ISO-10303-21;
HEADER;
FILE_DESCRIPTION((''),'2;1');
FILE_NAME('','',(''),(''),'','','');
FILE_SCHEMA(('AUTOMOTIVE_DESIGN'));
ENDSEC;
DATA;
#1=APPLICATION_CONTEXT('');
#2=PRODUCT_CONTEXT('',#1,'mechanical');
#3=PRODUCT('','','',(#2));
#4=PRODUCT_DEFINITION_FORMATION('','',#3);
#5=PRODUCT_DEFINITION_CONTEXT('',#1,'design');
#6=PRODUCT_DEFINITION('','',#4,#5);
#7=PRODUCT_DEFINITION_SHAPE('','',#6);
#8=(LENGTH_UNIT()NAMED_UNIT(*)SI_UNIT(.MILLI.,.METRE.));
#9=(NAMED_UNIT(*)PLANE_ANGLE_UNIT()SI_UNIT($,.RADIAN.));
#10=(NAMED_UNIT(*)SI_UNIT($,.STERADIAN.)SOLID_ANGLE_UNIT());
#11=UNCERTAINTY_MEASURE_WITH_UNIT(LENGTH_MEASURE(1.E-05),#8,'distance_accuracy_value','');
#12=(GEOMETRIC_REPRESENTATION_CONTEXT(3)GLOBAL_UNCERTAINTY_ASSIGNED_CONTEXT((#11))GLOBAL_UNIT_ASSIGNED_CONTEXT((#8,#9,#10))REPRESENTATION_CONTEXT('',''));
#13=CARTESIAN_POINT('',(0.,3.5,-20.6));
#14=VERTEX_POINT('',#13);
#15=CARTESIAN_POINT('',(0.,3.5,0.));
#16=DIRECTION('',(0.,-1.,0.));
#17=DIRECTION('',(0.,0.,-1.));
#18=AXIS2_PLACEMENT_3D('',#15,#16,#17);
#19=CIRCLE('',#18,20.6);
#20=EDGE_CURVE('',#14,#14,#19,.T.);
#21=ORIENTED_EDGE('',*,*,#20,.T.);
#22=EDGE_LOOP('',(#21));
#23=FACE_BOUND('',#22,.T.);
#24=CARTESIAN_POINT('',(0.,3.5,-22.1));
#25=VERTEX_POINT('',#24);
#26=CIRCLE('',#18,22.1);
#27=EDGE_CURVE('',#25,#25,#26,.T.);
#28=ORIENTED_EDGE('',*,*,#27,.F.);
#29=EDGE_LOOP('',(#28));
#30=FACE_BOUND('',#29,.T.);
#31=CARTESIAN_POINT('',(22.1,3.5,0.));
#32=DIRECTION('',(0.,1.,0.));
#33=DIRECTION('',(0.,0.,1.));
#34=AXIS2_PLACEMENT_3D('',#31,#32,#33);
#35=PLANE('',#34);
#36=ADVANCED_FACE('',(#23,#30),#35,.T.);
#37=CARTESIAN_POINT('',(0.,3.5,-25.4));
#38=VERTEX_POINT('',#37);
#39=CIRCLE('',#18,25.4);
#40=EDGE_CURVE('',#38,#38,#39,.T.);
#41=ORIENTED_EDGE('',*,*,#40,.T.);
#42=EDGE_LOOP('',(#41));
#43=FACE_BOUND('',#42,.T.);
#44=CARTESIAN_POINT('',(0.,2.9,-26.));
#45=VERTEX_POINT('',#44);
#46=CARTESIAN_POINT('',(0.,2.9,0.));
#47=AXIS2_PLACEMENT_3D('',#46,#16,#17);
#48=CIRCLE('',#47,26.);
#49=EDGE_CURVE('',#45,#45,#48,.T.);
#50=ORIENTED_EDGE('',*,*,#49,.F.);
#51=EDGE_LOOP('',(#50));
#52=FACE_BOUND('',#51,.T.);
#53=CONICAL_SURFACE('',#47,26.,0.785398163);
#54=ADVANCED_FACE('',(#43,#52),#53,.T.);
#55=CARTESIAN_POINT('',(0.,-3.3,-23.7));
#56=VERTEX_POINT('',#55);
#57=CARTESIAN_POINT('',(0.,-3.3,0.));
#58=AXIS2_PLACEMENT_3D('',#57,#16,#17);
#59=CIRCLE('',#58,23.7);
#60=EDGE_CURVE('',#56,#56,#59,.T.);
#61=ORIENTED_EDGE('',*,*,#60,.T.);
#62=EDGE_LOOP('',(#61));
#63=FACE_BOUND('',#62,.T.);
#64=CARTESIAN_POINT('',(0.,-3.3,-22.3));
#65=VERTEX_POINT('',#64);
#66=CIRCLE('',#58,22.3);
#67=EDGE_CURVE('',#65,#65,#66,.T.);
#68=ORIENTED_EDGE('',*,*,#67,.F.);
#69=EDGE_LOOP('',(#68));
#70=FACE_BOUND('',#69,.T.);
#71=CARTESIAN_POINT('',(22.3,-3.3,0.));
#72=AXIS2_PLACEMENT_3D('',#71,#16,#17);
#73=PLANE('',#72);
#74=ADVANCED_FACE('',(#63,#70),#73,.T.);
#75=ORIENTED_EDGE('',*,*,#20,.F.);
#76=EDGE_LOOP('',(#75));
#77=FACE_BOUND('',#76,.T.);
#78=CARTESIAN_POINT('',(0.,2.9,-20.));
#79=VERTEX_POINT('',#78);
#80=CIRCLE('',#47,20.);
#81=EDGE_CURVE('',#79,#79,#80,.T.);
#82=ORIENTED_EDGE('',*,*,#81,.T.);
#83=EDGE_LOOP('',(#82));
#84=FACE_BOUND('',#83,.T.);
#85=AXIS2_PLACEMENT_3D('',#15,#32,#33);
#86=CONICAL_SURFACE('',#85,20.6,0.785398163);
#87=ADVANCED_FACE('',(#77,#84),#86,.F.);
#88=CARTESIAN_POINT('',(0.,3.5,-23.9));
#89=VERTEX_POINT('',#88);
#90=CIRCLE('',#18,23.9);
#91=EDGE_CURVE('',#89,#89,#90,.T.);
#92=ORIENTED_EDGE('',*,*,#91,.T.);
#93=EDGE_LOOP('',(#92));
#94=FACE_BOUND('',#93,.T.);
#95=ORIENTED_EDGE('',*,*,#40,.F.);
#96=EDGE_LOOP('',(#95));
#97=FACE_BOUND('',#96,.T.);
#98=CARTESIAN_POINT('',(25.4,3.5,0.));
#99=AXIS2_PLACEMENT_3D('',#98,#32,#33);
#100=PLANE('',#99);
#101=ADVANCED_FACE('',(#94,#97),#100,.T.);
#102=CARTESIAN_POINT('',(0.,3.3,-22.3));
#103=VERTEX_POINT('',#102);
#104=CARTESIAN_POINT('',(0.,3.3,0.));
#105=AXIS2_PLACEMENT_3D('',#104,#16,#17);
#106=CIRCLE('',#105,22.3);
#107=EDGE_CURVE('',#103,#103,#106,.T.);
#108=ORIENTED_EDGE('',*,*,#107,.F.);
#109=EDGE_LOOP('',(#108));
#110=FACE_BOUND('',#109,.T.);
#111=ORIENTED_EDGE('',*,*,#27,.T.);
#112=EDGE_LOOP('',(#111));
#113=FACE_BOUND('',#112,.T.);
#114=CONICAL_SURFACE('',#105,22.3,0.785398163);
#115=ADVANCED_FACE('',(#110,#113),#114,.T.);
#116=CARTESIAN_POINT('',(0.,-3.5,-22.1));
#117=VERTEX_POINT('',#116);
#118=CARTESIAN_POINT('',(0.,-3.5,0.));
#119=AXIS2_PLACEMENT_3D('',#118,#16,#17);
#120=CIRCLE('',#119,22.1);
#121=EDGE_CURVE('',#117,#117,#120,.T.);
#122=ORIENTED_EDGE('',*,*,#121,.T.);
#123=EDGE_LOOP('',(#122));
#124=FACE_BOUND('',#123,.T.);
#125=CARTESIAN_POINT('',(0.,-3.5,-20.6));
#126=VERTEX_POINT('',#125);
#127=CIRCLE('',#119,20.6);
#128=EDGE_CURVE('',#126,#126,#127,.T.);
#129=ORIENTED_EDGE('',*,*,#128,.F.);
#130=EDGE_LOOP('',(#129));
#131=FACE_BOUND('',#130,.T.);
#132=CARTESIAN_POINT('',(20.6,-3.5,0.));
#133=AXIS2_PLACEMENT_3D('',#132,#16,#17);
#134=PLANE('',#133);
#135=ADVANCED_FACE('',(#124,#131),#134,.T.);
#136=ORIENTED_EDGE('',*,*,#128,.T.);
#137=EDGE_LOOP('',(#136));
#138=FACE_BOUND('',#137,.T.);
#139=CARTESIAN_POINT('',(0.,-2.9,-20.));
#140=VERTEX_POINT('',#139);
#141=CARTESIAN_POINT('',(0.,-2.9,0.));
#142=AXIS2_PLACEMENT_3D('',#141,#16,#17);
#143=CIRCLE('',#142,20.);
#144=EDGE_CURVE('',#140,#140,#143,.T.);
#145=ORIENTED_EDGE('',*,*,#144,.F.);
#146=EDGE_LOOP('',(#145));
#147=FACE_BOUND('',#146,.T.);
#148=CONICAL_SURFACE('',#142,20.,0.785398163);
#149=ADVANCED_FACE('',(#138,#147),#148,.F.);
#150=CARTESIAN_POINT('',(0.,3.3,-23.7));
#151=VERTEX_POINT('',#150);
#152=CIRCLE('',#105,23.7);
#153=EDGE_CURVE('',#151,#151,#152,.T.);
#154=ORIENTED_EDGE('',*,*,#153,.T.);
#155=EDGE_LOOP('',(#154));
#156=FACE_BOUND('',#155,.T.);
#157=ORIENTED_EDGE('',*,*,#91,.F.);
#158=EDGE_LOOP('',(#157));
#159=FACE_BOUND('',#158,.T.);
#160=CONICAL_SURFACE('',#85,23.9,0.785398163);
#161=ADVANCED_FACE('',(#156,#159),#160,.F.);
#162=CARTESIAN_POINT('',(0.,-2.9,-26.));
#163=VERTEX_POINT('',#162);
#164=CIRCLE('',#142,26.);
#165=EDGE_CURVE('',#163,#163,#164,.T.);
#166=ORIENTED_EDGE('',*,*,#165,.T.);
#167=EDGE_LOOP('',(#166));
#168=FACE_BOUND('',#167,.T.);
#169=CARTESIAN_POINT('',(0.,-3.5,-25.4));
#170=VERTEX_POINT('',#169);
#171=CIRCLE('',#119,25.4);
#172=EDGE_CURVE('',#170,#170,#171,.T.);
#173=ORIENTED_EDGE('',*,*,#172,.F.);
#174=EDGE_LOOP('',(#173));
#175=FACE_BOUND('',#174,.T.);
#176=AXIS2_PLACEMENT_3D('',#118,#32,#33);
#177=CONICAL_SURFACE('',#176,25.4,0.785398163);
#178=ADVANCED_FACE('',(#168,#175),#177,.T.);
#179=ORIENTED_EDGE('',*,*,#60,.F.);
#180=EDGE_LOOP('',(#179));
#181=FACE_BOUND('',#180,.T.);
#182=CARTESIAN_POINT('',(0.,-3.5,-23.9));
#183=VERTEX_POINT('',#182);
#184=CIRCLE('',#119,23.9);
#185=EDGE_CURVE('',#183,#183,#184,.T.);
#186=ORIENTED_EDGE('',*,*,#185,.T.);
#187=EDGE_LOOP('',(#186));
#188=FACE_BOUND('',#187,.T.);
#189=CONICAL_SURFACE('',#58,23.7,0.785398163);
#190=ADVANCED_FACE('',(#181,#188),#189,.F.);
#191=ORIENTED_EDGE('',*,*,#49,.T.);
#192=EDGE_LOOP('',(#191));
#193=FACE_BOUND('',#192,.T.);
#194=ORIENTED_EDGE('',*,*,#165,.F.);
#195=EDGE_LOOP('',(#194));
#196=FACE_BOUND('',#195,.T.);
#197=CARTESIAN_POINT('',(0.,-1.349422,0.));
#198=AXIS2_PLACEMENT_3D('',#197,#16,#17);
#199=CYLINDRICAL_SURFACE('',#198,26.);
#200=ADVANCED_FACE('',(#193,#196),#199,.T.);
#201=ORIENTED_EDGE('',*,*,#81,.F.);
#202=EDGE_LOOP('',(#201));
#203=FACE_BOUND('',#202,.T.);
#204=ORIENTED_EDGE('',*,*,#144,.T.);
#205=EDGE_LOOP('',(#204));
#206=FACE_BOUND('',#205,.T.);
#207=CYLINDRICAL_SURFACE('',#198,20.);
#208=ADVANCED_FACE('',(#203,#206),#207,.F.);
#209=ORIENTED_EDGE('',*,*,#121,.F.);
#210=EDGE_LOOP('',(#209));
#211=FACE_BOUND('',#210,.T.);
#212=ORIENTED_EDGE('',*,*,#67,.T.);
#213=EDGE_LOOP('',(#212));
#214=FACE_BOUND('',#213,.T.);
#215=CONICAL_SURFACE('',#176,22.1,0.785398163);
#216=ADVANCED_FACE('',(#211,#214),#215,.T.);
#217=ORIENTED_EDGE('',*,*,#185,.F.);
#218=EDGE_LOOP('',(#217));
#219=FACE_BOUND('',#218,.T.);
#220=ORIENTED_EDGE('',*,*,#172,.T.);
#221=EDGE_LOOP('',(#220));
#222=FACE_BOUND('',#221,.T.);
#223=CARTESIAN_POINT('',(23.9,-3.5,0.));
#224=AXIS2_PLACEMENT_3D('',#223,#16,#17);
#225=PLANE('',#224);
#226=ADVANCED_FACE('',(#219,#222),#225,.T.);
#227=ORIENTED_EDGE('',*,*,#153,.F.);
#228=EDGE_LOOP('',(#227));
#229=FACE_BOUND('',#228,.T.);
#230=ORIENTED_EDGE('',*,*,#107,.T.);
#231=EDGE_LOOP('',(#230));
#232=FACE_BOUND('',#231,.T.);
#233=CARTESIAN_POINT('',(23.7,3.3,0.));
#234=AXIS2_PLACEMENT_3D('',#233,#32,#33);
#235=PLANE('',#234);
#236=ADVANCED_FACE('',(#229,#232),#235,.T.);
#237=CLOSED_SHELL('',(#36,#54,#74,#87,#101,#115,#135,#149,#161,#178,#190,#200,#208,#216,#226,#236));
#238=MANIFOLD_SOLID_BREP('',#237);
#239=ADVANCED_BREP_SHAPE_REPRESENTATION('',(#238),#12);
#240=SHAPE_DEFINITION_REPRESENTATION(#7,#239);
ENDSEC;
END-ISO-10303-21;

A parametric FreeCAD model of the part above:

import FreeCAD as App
import Part
import Sketcher


def add_polygon(sketch, points):
    """Adds a closed chain of lines whose ends are joined by coincident constraints."""
    first, n = sketch.GeometryCount, len(points)
    for a, b in zip(points, points[1:] + points[:1]):
        sketch.addGeometry(Part.LineSegment(App.Vector(*a, 0), App.Vector(*b, 0)), False)
    for i in range(n):
        sketch.addConstraint(Sketcher.Constraint("Coincident", first + i, 2, first + (i + 1) % n, 1))

doc = App.newDocument("Part")
body = doc.addObject("PartDesign::Body", "Body")

# Sketch on XY plane
sketch1 = body.newObject("Sketcher::SketchObject", "Sketch")
sketch1.AttachmentSupport = (doc.getObject("XY_Plane"), [""])
sketch1.MapMode = "FlatFace"
add_polygon(sketch1, [(20, 2.9), (20, -2.9), (20.6, -3.5), (22.1, -3.5), (22.3, -3.3), (23.7, -3.3), (23.9, -3.5), (25.4, -3.5), (26, -2.9), (26, 2.9), (25.4, 3.5), (23.9, 3.5), (23.7, 3.3), (22.3, 3.3), (22.1, 3.5), (20.6, 3.5)])  # lines 0-15
sketch1.addConstraint([
    Sketcher.Constraint("Vertical", 0),
    Sketcher.Constraint("Horizontal", 2),
    Sketcher.Constraint("Horizontal", 4),
    Sketcher.Constraint("Horizontal", 6),
    Sketcher.Constraint("Vertical", 8),
    Sketcher.Constraint("Horizontal", 10),
    Sketcher.Constraint("Horizontal", 12),
    Sketcher.Constraint("Horizontal", 14),
    Sketcher.Constraint("Symmetric", 6, 2, 9, 2, -1),
    Sketcher.Constraint("Symmetric", 4, 2, 11, 2, -1),
    Sketcher.Constraint("Symmetric", 2, 2, 13, 2, -1),
    Sketcher.Constraint("Perpendicular", 1, 3),
    Sketcher.Constraint("Perpendicular", 3, 5),
    Sketcher.Constraint("Perpendicular", 5, 7),
    Sketcher.Constraint("Perpendicular", 7, 9),
    Sketcher.Constraint("Perpendicular", 9, 11),
    Sketcher.Constraint("Perpendicular", 11, 13),
    Sketcher.Constraint("Perpendicular", 13, 15),
    Sketcher.Constraint("Horizontal", 2, 2, 5, 2),
    Sketcher.Constraint("Horizontal", 0, 2, 7, 2),
    Sketcher.Constraint("Horizontal", 8, 2, 15, 2),
    Sketcher.Constraint("Vertical", 5, 2, 10, 2),
    Sketcher.Constraint("Equal", 2, 6),
    Sketcher.Constraint("DistanceX", 2, 1, 2, 2, 1.5),
    Sketcher.Constraint("DistanceX", 4, 1, 4, 2, 1.4),
    Sketcher.Constraint("DistanceY", 0, 2, 0, 1, 5.8),
    Sketcher.Constraint("DistanceX", -1, 1, 0, 2, 20.0),
    Sketcher.Constraint("DistanceX", -1, 1, 7, 2, 26.0),
    Sketcher.Constraint("DistanceY", 6, 2, 9, 2, 7.0),
])
revolution = body.newObject("PartDesign::Revolution", "Revolution")
revolution.Profile = sketch1
revolution.ReferenceAxis = (sketch1, ["V_Axis"])
revolution.Angle = 360

doc.recompute()
